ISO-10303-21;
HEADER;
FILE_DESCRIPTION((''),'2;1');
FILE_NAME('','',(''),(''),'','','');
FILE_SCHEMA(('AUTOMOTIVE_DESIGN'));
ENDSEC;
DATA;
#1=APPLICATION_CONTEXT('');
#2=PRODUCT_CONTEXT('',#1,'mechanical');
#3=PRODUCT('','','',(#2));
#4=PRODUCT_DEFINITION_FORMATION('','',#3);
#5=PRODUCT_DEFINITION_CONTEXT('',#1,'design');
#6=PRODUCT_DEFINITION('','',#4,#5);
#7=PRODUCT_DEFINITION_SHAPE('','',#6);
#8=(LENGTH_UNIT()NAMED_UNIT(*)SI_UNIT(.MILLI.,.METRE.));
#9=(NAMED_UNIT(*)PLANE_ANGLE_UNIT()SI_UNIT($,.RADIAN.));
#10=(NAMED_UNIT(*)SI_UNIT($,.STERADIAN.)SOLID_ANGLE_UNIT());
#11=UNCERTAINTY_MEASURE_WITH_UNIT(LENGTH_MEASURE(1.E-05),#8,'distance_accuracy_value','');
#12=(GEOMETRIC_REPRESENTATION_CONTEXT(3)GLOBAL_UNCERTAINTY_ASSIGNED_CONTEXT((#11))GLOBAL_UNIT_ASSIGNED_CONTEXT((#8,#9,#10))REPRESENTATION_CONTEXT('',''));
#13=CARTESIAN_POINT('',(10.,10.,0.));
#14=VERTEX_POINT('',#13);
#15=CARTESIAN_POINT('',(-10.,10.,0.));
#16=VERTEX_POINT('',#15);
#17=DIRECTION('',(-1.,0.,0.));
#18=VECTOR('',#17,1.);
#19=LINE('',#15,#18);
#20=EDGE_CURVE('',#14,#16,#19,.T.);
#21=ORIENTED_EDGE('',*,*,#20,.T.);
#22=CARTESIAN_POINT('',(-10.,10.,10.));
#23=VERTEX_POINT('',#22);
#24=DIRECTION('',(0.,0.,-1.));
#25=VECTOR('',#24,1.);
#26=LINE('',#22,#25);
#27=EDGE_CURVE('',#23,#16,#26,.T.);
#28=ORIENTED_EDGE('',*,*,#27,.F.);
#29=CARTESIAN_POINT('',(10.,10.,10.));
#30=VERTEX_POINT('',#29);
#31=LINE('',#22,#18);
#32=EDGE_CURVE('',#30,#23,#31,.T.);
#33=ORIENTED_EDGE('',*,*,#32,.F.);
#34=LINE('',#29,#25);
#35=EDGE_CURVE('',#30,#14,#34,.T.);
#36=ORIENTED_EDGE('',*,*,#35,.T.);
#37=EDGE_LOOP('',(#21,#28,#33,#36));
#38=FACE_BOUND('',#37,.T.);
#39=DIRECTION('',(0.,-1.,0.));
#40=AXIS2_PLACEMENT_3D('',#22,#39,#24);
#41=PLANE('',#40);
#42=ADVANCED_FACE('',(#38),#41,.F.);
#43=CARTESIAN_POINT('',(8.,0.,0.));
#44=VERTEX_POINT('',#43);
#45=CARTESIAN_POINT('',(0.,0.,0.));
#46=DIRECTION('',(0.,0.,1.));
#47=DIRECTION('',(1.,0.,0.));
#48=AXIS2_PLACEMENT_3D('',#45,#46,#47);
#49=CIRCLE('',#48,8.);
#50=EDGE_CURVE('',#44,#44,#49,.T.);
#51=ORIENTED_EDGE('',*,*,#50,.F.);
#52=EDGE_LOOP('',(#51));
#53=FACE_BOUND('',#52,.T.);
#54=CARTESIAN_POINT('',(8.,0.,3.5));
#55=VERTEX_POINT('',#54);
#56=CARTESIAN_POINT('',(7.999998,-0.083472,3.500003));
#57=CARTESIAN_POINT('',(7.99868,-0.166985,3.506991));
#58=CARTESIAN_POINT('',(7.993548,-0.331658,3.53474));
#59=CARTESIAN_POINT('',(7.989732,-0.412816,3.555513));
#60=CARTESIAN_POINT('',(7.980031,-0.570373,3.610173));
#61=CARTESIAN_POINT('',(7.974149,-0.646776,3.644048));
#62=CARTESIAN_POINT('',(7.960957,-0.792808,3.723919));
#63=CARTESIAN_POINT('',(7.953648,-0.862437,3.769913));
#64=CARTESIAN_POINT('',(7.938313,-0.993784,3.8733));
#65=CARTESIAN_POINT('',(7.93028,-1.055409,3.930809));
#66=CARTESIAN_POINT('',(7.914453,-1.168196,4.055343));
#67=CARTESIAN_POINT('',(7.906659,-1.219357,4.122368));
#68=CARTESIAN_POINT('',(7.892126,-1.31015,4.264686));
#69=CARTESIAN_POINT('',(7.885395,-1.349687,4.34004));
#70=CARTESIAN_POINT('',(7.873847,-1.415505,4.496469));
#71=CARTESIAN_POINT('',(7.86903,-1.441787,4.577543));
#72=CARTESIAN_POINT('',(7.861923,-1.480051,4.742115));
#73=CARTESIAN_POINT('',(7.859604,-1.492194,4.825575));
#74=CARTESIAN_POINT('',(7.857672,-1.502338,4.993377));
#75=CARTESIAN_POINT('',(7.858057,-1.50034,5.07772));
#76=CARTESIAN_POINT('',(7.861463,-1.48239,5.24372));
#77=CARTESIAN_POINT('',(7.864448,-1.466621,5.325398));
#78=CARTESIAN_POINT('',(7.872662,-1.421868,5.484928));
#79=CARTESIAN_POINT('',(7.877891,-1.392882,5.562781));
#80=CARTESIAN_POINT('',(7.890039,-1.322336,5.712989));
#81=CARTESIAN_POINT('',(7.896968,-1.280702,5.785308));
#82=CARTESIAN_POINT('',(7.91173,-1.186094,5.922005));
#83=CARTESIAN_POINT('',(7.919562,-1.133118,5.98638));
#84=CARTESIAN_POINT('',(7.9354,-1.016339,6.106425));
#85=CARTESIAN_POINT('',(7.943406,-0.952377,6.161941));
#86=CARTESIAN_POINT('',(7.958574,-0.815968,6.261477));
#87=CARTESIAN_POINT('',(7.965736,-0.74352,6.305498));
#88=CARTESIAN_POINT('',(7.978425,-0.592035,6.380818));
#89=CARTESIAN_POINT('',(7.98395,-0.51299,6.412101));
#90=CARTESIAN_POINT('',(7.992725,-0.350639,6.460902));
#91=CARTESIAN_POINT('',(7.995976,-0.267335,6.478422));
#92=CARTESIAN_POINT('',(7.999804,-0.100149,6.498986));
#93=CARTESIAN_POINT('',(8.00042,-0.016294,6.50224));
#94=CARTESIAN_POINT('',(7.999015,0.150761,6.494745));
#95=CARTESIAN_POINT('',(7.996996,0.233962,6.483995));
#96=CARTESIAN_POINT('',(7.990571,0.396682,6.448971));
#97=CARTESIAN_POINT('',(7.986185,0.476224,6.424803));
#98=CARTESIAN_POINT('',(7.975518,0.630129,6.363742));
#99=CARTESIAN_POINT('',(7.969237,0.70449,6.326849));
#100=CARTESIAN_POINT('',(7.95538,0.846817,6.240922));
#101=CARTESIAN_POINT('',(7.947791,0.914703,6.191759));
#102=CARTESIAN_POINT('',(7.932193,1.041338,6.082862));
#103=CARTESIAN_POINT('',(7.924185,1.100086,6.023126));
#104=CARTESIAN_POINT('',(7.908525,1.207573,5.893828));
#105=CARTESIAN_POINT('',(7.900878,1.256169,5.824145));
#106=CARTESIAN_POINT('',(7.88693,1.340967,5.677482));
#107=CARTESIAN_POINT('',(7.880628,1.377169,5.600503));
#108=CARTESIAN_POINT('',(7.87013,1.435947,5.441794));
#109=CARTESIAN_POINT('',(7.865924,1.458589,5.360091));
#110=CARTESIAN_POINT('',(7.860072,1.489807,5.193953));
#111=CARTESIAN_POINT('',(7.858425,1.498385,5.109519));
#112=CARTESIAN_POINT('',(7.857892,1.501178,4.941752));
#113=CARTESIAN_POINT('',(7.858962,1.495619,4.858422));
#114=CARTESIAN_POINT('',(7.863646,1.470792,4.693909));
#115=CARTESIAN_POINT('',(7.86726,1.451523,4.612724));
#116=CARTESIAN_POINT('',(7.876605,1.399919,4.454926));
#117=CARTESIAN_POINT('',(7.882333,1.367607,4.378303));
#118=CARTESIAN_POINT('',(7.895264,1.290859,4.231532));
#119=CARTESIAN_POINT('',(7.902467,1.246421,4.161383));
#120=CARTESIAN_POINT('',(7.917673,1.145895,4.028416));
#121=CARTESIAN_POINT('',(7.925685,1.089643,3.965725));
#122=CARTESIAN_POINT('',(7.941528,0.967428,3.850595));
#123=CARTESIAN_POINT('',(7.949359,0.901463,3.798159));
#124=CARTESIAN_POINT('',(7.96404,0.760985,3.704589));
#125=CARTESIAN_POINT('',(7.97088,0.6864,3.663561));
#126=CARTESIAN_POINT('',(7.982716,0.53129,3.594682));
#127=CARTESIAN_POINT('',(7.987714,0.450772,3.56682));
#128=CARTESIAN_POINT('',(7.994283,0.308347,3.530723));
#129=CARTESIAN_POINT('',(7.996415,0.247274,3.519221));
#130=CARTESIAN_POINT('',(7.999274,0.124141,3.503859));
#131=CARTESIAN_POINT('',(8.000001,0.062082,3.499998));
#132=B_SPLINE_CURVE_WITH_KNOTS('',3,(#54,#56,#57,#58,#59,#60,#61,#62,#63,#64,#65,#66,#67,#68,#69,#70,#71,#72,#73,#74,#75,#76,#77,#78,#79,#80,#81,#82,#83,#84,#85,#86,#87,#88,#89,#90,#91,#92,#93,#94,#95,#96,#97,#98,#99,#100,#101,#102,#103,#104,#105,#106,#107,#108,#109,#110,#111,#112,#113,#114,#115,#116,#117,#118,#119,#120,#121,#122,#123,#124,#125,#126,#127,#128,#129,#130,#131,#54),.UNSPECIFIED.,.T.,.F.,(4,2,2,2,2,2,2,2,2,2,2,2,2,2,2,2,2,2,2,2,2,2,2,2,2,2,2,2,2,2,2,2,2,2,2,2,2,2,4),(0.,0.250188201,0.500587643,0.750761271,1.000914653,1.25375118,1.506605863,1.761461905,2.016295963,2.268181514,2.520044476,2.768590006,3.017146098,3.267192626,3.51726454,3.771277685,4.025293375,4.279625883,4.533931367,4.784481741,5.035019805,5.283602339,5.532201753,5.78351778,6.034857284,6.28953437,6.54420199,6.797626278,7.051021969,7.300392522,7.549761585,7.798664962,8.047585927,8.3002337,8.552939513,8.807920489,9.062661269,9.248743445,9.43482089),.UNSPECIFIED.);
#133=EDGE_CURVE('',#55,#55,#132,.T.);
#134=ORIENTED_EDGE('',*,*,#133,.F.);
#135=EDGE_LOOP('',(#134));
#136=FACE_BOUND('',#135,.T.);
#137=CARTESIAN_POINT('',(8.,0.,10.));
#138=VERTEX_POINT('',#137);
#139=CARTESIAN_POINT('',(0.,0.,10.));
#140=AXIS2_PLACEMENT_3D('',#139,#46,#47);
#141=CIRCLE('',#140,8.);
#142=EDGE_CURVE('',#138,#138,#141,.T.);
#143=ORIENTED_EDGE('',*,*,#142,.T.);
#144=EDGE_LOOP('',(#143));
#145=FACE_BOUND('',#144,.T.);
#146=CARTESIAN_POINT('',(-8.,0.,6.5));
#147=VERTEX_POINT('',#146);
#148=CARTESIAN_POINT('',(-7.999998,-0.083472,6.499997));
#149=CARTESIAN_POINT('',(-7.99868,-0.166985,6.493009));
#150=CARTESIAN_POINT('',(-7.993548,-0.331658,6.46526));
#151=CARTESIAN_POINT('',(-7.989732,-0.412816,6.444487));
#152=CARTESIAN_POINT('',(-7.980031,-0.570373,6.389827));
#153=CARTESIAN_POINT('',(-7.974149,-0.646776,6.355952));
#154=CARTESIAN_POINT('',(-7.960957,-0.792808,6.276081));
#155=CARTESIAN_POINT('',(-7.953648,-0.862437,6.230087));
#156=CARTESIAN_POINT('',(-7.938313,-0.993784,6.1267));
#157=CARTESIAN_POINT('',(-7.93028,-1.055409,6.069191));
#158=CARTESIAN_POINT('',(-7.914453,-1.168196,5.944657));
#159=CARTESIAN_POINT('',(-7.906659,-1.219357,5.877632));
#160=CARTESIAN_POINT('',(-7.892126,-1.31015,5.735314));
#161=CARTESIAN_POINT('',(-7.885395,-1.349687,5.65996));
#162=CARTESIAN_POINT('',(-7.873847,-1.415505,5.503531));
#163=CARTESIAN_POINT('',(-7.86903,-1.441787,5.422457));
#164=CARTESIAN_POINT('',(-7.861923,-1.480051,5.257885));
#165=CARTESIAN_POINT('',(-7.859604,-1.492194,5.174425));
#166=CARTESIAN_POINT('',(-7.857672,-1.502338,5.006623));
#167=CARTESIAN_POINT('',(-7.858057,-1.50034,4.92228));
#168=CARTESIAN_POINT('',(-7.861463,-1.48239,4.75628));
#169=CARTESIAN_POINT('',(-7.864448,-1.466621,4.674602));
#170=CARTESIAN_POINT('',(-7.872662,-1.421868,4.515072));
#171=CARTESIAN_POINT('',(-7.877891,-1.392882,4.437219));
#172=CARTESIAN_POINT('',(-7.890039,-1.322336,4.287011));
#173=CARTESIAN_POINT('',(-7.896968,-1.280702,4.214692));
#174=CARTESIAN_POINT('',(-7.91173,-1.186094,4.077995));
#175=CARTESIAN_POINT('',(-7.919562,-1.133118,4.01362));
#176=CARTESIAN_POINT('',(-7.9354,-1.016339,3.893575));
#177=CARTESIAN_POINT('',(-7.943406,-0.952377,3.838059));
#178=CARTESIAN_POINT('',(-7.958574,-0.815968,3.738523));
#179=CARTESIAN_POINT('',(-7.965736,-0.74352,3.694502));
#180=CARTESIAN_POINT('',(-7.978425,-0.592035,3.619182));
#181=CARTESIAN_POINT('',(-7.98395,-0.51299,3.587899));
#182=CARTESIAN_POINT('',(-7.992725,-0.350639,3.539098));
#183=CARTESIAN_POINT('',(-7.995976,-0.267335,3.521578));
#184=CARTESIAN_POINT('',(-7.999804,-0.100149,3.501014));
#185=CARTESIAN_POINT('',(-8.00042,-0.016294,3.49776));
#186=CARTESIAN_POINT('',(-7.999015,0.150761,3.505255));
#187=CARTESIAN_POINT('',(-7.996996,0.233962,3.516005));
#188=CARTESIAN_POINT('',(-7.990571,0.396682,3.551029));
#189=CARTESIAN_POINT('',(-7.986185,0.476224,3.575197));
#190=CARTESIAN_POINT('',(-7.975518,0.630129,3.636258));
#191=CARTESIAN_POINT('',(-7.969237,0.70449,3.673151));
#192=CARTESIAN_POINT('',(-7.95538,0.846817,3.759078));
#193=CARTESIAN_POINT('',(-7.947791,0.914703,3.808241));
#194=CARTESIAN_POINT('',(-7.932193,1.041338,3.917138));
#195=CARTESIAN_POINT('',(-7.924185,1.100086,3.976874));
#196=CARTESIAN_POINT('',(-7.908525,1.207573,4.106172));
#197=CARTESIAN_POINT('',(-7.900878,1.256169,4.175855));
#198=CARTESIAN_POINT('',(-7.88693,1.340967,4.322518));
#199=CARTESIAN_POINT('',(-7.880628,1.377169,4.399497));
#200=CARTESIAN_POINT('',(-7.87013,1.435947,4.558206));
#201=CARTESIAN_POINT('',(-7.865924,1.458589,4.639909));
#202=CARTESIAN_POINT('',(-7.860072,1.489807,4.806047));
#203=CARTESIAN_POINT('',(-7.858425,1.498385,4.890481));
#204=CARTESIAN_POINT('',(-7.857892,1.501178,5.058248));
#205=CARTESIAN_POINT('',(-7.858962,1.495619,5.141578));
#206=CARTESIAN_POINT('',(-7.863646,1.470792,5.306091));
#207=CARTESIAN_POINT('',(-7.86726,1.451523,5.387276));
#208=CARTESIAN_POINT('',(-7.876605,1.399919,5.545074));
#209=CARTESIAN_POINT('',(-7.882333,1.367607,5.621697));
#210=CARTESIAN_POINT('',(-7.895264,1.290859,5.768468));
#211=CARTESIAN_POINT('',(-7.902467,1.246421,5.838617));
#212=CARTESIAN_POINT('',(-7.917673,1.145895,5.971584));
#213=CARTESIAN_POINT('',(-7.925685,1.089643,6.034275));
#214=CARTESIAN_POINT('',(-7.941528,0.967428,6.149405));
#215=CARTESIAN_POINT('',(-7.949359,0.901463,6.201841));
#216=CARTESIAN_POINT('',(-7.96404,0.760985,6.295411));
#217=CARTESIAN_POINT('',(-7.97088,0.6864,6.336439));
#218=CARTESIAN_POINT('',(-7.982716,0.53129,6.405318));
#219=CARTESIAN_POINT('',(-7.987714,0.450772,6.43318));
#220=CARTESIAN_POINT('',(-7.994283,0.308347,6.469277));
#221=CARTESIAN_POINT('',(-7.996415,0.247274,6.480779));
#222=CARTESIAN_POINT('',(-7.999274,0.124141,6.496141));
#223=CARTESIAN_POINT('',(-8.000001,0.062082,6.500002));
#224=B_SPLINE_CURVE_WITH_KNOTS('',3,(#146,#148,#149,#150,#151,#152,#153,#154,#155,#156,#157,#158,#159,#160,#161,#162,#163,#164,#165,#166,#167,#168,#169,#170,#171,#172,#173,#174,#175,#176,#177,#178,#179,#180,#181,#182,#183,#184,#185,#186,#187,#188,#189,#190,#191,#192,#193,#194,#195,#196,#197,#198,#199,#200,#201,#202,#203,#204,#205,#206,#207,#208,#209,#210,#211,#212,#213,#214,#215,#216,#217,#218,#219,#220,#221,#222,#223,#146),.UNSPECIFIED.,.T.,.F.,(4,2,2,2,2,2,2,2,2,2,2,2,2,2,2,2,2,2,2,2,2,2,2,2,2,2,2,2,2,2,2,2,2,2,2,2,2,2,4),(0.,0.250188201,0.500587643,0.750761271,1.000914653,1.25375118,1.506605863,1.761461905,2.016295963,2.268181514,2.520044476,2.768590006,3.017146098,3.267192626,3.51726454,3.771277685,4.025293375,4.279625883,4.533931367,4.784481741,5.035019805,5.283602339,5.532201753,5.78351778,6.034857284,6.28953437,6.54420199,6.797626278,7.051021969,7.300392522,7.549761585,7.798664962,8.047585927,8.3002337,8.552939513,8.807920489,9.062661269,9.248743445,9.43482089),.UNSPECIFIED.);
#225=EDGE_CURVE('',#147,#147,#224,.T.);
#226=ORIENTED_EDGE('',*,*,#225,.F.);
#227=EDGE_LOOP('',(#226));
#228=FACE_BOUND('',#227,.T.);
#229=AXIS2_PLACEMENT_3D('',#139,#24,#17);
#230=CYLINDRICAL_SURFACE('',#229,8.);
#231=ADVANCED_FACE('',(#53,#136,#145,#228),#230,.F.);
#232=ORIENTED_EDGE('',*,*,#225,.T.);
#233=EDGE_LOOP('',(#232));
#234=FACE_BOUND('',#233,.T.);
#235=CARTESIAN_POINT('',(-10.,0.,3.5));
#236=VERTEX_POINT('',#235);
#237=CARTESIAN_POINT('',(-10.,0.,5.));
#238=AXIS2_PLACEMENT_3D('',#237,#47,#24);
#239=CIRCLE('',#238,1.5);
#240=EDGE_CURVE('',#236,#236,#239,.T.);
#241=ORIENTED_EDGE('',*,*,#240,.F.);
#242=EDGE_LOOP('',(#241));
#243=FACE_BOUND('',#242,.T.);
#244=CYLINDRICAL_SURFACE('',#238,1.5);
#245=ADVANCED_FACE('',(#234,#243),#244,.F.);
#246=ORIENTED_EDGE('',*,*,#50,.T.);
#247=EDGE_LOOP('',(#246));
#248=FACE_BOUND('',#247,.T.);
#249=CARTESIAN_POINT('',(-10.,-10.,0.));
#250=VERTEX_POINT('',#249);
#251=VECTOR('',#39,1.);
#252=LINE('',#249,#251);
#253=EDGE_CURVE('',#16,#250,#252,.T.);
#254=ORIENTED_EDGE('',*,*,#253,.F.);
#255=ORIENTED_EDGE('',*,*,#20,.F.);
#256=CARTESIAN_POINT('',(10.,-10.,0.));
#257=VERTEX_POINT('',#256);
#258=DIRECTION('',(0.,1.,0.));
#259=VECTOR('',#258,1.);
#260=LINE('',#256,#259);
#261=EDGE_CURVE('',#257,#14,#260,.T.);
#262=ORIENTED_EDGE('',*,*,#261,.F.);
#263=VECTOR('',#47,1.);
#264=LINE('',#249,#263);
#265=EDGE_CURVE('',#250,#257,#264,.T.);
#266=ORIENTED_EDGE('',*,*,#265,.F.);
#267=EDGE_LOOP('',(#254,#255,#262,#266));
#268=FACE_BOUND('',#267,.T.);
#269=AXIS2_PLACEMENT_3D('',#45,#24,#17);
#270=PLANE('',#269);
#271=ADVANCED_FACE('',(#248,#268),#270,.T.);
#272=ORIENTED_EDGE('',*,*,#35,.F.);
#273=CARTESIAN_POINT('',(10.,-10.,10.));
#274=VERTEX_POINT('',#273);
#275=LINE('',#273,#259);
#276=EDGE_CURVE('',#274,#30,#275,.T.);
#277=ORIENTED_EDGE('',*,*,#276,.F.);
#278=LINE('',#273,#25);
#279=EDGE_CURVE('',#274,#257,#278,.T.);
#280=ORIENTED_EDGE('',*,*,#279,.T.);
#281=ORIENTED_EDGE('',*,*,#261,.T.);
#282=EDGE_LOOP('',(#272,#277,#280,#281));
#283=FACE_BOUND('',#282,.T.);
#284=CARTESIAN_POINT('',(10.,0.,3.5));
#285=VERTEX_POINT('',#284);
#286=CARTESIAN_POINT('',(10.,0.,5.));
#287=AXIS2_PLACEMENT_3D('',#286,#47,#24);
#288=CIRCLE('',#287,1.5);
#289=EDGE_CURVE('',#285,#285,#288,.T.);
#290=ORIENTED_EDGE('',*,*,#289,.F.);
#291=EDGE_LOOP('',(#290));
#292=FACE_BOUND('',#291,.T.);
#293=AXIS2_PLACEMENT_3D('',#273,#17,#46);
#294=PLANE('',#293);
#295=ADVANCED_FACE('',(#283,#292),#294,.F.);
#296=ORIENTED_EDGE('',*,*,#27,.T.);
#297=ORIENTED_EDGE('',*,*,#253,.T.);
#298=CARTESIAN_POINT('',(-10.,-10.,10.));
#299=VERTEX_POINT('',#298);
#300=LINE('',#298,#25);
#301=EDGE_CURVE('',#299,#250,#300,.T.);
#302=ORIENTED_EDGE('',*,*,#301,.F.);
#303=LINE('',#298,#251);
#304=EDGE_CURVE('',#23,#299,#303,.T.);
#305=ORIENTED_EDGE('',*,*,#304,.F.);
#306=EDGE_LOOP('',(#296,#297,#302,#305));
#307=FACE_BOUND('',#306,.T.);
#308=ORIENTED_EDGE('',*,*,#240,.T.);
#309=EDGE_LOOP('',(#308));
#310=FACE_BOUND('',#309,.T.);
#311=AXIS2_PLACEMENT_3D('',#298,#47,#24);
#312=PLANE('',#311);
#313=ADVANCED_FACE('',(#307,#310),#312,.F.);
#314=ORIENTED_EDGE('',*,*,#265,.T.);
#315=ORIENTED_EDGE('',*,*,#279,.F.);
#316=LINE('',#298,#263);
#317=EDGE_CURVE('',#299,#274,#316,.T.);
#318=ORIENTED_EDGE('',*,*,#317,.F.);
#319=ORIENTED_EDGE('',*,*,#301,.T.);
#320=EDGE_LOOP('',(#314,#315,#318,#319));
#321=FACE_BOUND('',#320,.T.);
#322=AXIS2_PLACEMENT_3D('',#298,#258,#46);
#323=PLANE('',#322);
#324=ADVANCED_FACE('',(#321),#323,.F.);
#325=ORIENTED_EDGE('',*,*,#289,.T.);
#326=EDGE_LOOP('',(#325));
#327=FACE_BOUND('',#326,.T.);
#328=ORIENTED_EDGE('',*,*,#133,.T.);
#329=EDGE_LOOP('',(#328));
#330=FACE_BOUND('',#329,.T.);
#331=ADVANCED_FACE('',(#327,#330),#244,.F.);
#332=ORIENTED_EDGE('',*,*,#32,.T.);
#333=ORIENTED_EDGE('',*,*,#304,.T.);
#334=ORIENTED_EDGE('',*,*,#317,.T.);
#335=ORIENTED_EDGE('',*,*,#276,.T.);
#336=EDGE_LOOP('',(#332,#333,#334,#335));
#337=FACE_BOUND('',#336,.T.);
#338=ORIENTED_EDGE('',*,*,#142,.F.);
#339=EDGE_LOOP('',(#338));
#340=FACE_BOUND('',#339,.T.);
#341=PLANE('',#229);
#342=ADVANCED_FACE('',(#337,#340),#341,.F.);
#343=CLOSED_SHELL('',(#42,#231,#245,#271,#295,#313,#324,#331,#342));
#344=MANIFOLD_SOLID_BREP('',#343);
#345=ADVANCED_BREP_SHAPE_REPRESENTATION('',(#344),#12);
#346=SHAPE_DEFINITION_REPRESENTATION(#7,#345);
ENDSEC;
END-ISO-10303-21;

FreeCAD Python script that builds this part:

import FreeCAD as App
import Part
import Sketcher
Q = App.Units.Quantity

doc = App.newDocument("Part")
params = doc.addObject("Spreadsheet::Sheet", "Params")
for row, (alias, value) in enumerate([
    ("sketch1_diameter", "16 mm"),
    ("sketch1_width", "20 mm"),
    ("pad1_length", "10 mm"),
    ("sketch2_diameter", "3 mm"),
    ("pocket1_length", "20 mm"),
], start=1):
    params.set(f"A{row}", alias)
    params.set(f"B{row}", "=" + value)
    params.setAlias(f"B{row}", alias)

body = doc.addObject("PartDesign::Body", "Body")

# Sketch on XY plane
sketch1 = body.newObject("Sketcher::SketchObject", "Sketch")
sketch1.AttachmentSupport = (doc.getObject("XY_Plane"), [""])
sketch1.MapMode = "FlatFace"
sketch1.addGeometry([
    Part.LineSegment(App.Vector(-10, 10, 0), App.Vector(-10, -10, 0)),  # 0
    Part.LineSegment(App.Vector(-10, -10, 0), App.Vector(10, -10, 0)),  # 1
    Part.LineSegment(App.Vector(10, -10, 0), App.Vector(10, 10, 0)),  # 2
    Part.LineSegment(App.Vector(10, 10, 0), App.Vector(-10, 10, 0)),  # 3
    Part.Circle(App.Vector(0, 0, 0), App.Vector(0, 0, 1), 8),  # 4
], False)
sketch1.addConstraint([
    Sketcher.Constraint("Coincident", 0, 2, 1, 1),
    Sketcher.Constraint("Coincident", 1, 2, 2, 1),
    Sketcher.Constraint("Coincident", 2, 2, 3, 1),
    Sketcher.Constraint("Coincident", 3, 2, 0, 1),
    Sketcher.Constraint("Vertical", 0),
    Sketcher.Constraint("Horizontal", 1),
    Sketcher.Constraint("Vertical", 2),
    Sketcher.Constraint("Horizontal", 3),
    Sketcher.Constraint("Coincident", 4, 3, -1, 1),
    Sketcher.Constraint("Symmetric", 0, 2, 2, 2, -1, 1),
    Sketcher.Constraint("Equal", 3, 0),
    Sketcher.Constraint("Diameter", 4, Q("16 mm")),
    Sketcher.Constraint("DistanceX", 1, 1, 1, 2, Q("20 mm")),
])
sketch1.setExpression("Constraints[11]", "Params.sketch1_diameter")
sketch1.setExpression("Constraints[12]", "Params.sketch1_width")
pad1 = body.newObject("PartDesign::Pad", "Pad")
pad1.Profile = sketch1
pad1.setExpression("Length", "Params.pad1_length")

# Sketch on YZ plane
sketch2 = body.newObject("Sketcher::SketchObject", "Sketch001")
sketch2.AttachmentSupport = (doc.getObject("YZ_Plane"), [""])
sketch2.MapMode = "FlatFace"
sketch2.AttachmentOffset = App.Placement(App.Vector(0, 0, 10), App.Rotation())
sketch2.addGeometry(Part.Circle(App.Vector(0, 5, 0), App.Vector(0, 0, 1), 1.5), False)
sketch2.addConstraint([
    Sketcher.Constraint("PointOnObject", 0, 3, -2),
    Sketcher.Constraint("Diameter", 0, Q("3 mm")),
    Sketcher.Constraint("DistanceY", -1, 1, 0, 3, Q("5 mm")),
])
sketch2.setExpression("Constraints[1]", "Params.sketch2_diameter")
pocket1 = body.newObject("PartDesign::Pocket", "Pocket")
pocket1.Profile = sketch2
pocket1.setExpression("Length", "Params.pocket1_length")

doc.recompute()
